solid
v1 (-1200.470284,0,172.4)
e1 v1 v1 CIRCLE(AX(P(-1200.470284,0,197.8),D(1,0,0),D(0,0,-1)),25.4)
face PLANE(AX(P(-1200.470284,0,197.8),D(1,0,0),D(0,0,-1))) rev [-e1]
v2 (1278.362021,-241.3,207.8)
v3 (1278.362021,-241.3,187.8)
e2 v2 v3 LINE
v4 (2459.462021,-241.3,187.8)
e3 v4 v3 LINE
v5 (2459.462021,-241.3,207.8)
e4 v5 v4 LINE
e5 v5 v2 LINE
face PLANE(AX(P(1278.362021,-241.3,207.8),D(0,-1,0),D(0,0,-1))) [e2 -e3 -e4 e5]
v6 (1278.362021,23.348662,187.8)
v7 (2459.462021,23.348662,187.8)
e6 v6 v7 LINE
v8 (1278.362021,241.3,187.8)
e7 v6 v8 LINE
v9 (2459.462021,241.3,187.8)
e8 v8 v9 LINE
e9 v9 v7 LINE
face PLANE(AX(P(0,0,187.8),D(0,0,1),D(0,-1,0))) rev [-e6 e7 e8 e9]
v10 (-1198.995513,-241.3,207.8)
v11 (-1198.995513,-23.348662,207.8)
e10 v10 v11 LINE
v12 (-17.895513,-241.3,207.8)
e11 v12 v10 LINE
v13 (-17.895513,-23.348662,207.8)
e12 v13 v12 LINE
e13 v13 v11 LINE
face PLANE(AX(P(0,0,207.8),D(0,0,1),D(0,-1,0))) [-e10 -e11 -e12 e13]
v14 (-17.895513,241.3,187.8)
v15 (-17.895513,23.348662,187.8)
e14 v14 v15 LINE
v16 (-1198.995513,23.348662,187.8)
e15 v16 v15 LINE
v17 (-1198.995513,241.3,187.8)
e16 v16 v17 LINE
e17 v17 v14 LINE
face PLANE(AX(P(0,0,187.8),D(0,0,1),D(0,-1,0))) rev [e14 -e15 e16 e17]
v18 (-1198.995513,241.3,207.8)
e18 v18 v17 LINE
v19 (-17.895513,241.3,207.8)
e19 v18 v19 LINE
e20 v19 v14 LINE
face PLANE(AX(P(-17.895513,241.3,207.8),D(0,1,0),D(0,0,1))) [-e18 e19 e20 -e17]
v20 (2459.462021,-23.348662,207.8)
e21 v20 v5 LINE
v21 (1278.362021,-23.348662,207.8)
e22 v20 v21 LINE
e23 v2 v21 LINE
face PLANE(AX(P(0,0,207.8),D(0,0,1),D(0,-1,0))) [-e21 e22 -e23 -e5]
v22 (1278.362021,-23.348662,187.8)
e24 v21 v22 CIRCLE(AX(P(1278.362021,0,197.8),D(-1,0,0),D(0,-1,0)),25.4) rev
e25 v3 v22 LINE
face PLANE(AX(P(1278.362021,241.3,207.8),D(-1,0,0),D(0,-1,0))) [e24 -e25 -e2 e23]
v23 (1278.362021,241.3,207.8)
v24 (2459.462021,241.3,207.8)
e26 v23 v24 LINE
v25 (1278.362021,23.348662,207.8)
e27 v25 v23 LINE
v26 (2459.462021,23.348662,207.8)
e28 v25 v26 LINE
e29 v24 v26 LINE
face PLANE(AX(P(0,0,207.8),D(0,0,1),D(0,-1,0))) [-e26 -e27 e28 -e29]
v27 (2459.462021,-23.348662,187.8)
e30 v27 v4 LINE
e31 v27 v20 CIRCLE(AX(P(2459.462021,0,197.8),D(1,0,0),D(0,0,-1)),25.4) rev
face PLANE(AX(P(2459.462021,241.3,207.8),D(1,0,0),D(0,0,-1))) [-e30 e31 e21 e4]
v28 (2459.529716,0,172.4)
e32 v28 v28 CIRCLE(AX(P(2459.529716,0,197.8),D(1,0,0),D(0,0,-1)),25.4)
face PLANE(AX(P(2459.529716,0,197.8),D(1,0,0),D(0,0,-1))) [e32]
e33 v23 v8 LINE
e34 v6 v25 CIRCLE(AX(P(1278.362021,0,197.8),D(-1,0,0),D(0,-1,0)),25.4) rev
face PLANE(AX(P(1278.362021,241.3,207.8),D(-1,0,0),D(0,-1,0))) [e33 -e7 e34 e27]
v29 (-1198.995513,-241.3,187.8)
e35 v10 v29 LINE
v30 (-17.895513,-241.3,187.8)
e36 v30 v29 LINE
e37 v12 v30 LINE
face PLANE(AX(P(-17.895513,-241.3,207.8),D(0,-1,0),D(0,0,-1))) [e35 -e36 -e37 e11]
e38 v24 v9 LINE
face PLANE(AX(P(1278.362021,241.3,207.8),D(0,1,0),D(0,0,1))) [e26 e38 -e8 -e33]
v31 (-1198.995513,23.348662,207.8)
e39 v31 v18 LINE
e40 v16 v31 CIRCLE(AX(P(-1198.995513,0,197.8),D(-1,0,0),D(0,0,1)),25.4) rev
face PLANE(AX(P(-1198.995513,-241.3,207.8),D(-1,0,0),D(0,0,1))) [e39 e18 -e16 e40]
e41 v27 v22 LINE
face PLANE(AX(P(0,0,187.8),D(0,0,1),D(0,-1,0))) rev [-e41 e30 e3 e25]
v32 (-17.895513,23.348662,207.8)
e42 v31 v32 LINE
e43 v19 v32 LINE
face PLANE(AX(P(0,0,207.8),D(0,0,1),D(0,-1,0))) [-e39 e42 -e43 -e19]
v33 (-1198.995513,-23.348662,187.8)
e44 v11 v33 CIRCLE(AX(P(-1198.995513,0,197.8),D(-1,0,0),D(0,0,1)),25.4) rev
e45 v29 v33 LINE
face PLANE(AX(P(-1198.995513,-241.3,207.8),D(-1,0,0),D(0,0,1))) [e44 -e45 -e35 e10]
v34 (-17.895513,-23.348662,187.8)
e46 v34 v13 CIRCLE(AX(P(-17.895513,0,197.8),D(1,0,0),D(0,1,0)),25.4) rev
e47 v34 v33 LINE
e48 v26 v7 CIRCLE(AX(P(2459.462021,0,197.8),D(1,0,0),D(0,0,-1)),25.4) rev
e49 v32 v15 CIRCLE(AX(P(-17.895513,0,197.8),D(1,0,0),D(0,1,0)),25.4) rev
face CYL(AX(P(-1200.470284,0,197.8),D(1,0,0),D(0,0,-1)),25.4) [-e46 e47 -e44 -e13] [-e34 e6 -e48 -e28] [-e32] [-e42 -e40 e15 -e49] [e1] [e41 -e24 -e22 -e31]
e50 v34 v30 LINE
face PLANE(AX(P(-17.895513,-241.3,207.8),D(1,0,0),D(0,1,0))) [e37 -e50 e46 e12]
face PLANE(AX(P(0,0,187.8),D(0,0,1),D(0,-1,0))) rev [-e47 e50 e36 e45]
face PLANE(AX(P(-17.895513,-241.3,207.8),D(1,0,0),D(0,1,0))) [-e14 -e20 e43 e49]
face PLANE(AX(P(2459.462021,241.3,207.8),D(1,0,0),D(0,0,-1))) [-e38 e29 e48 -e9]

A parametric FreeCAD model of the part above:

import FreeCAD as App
import Part
import Sketcher
Q = App.Units.Quantity


def add_polygon(sketch, points):
    """Adds a closed chain of lines whose ends are joined by coincident constraints."""
    first, n = sketch.GeometryCount, len(points)
    for a, b in zip(points, points[1:] + points[:1]):
        sketch.addGeometry(Part.LineSegment(App.Vector(*a, 0), App.Vector(*b, 0)), False)
    for i in range(n):
        sketch.addConstraint(Sketcher.Constraint("Coincident", first + i, 2, first + (i + 1) % n, 1))

doc = App.newDocument("Part")
body = doc.addObject("PartDesign::Body", "Body")

# Sketch on YZ plane
sketch1 = body.newObject("Sketcher::SketchObject", "Sketch")
sketch1.AttachmentSupport = (doc.getObject("YZ_Plane"), [""])
sketch1.MapMode = "FlatFace"
sketch1.AttachmentOffset = App.Placement(App.Vector(0, 0, 2459.529716), App.Rotation())
sketch1.addGeometry(Part.Circle(App.Vector(0, 198, 0), App.Vector(0, 0, 1), 25), False)
sketch1.addConstraint(Sketcher.Constraint("PointOnObject", 0, 3, -2))
sketch1.addConstraint(Sketcher.Constraint("Diameter", 0, Q("2 in")))
sketch1.addConstraint(Sketcher.Constraint("DistanceY", -1, 1, 0, 3, Q("197.8 mm")))
pad1 = body.newObject("PartDesign::Pad", "Pad")
pad1.Profile = sketch1
pad1.Length = 3660
pad1.Reversed = True

# Sketch on XY plane
sketch2 = body.newObject("Sketcher::SketchObject", "Sketch001")
sketch2.AttachmentSupport = (doc.getObject("XY_Plane"), [""])
sketch2.MapMode = "FlatFace"
sketch2.AttachmentOffset = App.Placement(App.Vector(0, 0, 197.8), App.Rotation())
add_polygon(sketch2, [(2459, 241), (2459, -241), (1278, -241), (1278, 241)])  # lines 0-3
add_polygon(sketch2, [(-18, 241), (-18, -241), (-1199, -241), (-1199, 241)])  # lines 4-7
sketch2.addConstraint(Sketcher.Constraint("Vertical", 0))
sketch2.addConstraint(Sketcher.Constraint("Horizontal", 1))
sketch2.addConstraint(Sketcher.Constraint("Vertical", 2))
sketch2.addConstraint(Sketcher.Constraint("Horizontal", 3))
sketch2.addConstraint(Sketcher.Constraint("Vertical", 4))
sketch2.addConstraint(Sketcher.Constraint("Horizontal", 5))
sketch2.addConstraint(Sketcher.Constraint("Vertical", 6))
sketch2.addConstraint(Sketcher.Constraint("Horizontal", 7))
sketch2.addConstraint(Sketcher.Constraint("Horizontal", 1, 2, 4, 2))
sketch2.addConstraint(Sketcher.Constraint("Horizontal", 3, 2, 6, 2))
sketch2.addConstraint(Sketcher.Constraint("Equal", 3, 5))
sketch2.addConstraint(Sketcher.Constraint("DistanceY", 0, 2, 0, 1, Q("19 in")))
sketch2.addConstraint(Sketcher.Constraint("DistanceX", 1, 2, 1, 1, Q("46.5 in")))
sketch2.addConstraint(Sketcher.Constraint("DistanceY", 0, 2, -1, 1, Q("9.5 in")))
sketch2.addConstraint(Sketcher.Constraint("DistanceX", -1, 1, 0, 2, Q("2459.462021 mm")))
sketch2.addConstraint(Sketcher.Constraint("DistanceX", 4, 2, -1, 1, Q("17.895513 mm")))
pad2 = body.newObject("PartDesign::Pad", "Pad001")
pad2.Profile = sketch2
pad2.Type = "TwoLengths"
pad2.Length = 10
pad2.Length2 = 10
pad2.Reversed = True

doc.recompute()
